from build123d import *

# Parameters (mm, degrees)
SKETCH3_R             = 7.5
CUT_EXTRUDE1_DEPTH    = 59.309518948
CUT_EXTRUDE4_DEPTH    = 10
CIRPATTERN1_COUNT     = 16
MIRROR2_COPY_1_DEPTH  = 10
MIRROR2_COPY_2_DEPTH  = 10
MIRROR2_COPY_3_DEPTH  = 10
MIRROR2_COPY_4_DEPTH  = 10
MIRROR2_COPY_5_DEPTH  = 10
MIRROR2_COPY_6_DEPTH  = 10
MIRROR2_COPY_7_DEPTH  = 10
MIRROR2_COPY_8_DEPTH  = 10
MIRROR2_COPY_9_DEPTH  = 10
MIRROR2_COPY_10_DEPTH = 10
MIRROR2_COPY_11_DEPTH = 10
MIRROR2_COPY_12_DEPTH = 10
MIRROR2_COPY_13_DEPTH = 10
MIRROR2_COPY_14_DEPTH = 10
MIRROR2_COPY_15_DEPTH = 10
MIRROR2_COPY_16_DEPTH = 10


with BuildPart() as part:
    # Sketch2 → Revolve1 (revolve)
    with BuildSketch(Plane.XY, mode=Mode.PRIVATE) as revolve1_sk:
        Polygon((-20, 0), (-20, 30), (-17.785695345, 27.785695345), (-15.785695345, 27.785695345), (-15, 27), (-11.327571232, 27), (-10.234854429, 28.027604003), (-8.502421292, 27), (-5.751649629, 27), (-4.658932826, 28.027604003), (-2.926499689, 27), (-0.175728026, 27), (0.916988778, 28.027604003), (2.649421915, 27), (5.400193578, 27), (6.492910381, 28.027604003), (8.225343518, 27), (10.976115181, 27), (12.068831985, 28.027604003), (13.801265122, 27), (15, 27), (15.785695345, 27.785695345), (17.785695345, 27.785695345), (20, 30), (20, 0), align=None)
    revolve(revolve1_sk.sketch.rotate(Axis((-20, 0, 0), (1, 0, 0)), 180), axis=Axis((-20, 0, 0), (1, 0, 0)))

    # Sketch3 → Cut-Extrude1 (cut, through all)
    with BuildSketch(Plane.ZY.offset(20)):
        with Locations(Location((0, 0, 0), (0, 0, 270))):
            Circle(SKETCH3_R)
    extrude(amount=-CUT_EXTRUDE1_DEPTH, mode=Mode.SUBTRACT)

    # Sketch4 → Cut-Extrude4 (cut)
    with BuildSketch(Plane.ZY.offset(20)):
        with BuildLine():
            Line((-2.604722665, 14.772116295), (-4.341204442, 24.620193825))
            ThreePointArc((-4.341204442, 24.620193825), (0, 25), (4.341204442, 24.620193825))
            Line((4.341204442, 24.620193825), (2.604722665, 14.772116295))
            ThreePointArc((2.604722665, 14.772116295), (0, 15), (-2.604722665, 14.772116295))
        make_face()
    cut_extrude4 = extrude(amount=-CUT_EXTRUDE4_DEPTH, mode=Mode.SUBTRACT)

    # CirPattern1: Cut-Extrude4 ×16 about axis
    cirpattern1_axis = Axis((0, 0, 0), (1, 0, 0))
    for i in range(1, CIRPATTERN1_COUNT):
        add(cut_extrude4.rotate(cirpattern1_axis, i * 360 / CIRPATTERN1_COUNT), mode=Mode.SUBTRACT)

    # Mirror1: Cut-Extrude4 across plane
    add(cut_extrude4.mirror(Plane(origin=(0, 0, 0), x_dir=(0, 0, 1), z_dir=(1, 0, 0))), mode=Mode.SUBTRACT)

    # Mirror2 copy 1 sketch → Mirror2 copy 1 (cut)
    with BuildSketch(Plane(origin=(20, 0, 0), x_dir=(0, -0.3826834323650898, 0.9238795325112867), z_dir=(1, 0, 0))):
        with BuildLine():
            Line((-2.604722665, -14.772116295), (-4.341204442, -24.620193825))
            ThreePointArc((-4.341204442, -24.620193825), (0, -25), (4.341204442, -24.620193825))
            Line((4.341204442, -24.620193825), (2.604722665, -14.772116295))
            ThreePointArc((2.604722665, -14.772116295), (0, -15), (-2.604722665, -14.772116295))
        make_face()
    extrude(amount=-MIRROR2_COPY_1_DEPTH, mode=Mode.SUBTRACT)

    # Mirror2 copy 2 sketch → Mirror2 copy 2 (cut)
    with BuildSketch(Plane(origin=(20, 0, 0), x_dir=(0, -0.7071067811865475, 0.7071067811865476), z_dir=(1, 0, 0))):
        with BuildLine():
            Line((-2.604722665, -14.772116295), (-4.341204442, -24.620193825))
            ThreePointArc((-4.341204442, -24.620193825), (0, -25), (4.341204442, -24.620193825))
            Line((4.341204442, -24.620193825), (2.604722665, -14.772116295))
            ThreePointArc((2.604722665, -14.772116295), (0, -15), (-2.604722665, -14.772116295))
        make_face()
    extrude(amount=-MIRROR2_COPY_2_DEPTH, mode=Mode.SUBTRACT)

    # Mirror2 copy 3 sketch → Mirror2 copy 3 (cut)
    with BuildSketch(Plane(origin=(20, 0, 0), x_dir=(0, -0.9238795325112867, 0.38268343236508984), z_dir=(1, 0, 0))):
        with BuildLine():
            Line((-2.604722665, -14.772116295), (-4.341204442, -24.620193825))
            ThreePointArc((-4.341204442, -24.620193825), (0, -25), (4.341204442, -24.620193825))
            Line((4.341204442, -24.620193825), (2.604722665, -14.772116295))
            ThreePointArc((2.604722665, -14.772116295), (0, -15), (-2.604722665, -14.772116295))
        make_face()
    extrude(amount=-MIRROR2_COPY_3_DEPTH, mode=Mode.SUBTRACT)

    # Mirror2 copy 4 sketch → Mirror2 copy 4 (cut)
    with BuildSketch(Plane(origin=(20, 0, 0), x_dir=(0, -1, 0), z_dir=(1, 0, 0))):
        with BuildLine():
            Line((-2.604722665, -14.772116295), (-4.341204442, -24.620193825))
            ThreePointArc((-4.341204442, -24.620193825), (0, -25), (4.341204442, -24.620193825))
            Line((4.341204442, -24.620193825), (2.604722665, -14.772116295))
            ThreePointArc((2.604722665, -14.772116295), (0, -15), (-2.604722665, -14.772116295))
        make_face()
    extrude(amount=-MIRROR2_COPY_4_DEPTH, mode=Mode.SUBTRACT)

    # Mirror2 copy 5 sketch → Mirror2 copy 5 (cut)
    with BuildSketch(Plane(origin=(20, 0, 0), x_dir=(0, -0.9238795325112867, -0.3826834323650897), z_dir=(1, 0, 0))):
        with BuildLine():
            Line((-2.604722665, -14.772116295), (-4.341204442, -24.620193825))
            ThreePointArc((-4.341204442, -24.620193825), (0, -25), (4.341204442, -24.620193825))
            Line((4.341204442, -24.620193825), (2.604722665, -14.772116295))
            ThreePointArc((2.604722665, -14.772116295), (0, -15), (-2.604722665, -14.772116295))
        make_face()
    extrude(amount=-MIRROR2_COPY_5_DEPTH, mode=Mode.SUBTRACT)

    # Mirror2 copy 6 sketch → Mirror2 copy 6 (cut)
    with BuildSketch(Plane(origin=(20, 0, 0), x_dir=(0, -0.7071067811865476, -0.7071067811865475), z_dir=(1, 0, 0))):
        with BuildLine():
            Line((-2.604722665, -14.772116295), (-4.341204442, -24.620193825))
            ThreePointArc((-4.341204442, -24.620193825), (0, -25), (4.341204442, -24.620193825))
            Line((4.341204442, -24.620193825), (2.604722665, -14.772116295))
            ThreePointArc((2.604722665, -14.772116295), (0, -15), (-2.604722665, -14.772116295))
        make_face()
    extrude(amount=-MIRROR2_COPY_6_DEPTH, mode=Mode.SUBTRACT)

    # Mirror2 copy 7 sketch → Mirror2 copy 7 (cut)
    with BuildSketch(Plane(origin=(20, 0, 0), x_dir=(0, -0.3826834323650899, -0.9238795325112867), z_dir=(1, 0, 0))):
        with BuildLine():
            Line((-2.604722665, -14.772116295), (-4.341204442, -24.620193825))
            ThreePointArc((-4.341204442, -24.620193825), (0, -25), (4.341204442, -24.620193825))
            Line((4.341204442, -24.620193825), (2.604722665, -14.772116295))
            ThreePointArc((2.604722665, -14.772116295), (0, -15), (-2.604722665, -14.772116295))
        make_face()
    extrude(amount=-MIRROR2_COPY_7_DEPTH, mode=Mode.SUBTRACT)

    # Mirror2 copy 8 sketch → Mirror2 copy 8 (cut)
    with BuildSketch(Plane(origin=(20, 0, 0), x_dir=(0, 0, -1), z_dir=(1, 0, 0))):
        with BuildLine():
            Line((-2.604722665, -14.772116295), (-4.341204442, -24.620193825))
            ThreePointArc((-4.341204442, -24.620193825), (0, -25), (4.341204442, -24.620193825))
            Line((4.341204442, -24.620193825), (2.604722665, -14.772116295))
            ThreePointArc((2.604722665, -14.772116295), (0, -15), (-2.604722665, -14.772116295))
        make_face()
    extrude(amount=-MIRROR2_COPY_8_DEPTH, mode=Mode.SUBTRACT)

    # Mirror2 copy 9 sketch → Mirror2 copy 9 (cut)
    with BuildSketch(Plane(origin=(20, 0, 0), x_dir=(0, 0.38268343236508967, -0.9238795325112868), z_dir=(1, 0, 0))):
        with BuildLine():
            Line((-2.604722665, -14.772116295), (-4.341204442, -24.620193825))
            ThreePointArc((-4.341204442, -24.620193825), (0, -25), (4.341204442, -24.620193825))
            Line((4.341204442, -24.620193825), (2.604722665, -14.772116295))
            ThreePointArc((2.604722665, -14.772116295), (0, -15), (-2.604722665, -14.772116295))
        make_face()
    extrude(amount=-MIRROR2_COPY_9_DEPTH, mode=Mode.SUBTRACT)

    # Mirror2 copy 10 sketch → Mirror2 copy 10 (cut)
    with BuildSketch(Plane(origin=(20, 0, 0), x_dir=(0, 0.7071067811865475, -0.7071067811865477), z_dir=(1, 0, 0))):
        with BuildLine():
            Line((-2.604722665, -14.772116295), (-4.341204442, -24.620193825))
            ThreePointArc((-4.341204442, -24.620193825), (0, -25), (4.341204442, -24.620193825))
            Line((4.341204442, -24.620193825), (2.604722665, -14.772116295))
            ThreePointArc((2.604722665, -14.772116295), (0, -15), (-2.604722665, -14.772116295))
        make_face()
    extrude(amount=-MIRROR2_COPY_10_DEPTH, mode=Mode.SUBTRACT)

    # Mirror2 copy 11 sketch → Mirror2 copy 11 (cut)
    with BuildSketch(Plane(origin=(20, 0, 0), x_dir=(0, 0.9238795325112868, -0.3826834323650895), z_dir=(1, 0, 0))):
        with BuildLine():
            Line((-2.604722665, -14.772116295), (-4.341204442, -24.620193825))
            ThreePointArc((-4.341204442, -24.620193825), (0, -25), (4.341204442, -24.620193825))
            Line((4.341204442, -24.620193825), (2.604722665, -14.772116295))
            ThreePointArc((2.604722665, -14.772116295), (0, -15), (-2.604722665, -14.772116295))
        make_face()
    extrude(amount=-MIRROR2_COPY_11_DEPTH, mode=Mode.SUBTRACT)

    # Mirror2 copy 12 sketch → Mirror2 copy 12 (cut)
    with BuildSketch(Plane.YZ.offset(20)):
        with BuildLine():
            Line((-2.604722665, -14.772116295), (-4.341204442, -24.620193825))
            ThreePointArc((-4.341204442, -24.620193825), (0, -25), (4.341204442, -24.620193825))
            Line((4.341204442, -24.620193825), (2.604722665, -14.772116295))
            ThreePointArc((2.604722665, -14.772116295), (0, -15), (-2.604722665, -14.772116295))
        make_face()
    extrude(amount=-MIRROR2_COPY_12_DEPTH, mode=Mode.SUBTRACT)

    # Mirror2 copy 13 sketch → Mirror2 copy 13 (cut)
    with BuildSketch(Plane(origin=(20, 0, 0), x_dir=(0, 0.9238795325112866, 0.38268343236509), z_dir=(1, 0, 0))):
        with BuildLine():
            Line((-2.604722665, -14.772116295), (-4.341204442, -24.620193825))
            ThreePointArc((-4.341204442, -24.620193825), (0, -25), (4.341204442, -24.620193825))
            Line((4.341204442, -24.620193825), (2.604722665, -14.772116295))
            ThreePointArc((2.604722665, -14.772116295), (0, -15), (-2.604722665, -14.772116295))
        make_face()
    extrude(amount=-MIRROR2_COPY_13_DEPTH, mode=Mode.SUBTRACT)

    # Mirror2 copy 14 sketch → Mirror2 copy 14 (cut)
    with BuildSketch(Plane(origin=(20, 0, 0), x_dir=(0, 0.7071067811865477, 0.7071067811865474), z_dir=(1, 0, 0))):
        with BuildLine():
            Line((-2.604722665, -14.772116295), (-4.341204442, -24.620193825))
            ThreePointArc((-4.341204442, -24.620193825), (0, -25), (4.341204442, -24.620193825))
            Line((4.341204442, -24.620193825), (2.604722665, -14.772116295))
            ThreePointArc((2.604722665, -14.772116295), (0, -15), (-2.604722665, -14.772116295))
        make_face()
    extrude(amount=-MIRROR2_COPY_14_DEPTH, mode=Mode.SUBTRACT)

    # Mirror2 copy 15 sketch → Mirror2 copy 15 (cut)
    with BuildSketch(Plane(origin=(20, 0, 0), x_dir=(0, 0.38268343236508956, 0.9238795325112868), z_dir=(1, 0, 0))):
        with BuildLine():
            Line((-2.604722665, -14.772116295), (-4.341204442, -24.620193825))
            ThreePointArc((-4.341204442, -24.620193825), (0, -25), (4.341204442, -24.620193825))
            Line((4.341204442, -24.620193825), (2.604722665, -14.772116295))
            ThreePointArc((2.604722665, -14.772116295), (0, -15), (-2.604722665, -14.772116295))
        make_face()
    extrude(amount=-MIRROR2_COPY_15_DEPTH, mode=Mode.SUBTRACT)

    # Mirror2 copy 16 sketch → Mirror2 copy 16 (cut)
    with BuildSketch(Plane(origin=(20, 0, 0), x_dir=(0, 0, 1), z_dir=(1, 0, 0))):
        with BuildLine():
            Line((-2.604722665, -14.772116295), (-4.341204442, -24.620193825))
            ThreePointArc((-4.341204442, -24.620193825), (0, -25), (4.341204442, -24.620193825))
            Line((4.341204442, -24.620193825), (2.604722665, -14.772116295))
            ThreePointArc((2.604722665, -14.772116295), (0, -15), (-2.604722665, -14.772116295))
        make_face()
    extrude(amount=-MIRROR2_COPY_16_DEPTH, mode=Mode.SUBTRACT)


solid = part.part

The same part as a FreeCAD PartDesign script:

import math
import FreeCAD as App
import Part
import Sketcher
from FreeCAD import Vector
Q = App.Units.Quantity


def add_polygon(sketch, points):
    """Adds a closed chain of lines whose ends are joined by coincident constraints."""
    first, n = sketch.GeometryCount, len(points)
    for a, b in zip(points, points[1:] + points[:1]):
        sketch.addGeometry(Part.LineSegment(App.Vector(*a, 0), App.Vector(*b, 0)), False)
    for i in range(n):
        sketch.addConstraint(Sketcher.Constraint("Coincident", first + i, 2, first + (i + 1) % n, 1))

doc = App.newDocument("Part")
body = doc.addObject("PartDesign::Body", "Body")

sketch1 = doc.addObject("Sketcher::SketchObject", "Sketch")
body.addObject(sketch1)
sketch1.AttachmentSupport = (doc.XY_Plane, [""])
sketch1.MapMode = "FlatFace"
add_polygon(sketch1, [(-20, 30), (-20, 0), (20, 0), (20, 30), (17.8, 27.8), (15.8, 27.8), (15, 27), (13.8, 27), (12.1, 28), (11, 27), (8.2, 27), (6.5, 28), (5.4, 27), (2.6, 27), (0.9, 28), (-0.2, 27), (-2.9, 27), (-4.7, 28), (-5.8, 27), (-8.5, 27), (-10.2, 28), (-11.3, 27), (-15, 27), (-15.8, 27.8), (-17.8, 27.8)])
sketch1.addConstraint([
    Sketcher.Constraint("Vertical", 0),
    Sketcher.Constraint("Horizontal", 1),
    Sketcher.Constraint("Vertical", 2),
    Sketcher.Constraint("Horizontal", 4),
    Sketcher.Constraint("Horizontal", 6),
    Sketcher.Constraint("Horizontal", 9),
    Sketcher.Constraint("Horizontal", 12),
    Sketcher.Constraint("Horizontal", 15),
    Sketcher.Constraint("Horizontal", 18),
    Sketcher.Constraint("Horizontal", 21),
    Sketcher.Constraint("Horizontal", 23),
    Sketcher.Constraint("Symmetric", 0, 2, 1, 2, -1, 1),
    Sketcher.Constraint("Symmetric", 5, 2, 21, 2, -2),
    Sketcher.Constraint("Symmetric", 4, 2, 22, 2, -2),
    Sketcher.Constraint("Parallel", 3, 5),
    Sketcher.Constraint("Parallel", 7, 10),
    Sketcher.Constraint("Parallel", 8, 11),
    Sketcher.Constraint("Parallel", 10, 13),
    Sketcher.Constraint("Parallel", 11, 14),
    Sketcher.Constraint("Parallel", 13, 16),
    Sketcher.Constraint("Parallel", 14, 17),
    Sketcher.Constraint("Parallel", 16, 19),
    Sketcher.Constraint("Parallel", 17, 20),
    Sketcher.Constraint("Perpendicular", 5, 22),
    Sketcher.Constraint("Parallel", 22, 24),
    Sketcher.Constraint("Horizontal", 6, 2, 8, 2),
    Sketcher.Constraint("Horizontal", 7, 2, 10, 2),
    Sketcher.Constraint("Horizontal", 9, 2, 11, 2),
    Sketcher.Constraint("Horizontal", 10, 2, 13, 2),
    Sketcher.Constraint("Horizontal", 12, 2, 14, 2),
    Sketcher.Constraint("Horizontal", 13, 2, 16, 2),
    Sketcher.Constraint("Horizontal", 15, 2, 17, 2),
    Sketcher.Constraint("Horizontal", 16, 2, 19, 2),
    Sketcher.Constraint("Horizontal", 2, 2, 24, 2),
    Sketcher.Constraint("Equal", 9, 12),
    Sketcher.Constraint("Equal", 12, 15),
    Sketcher.Constraint("Equal", 15, 18),
    Sketcher.Constraint("DistanceX", 1, 1, 1, 2, 40.0),
    Sketcher.Constraint("DistanceX", 4, 2, 4, 1, 2.0),
    Sketcher.Constraint("DistanceY", 0, 2, 0, 1, 30.0),
    Sketcher.Constraint("DistanceX", -1, 1, 5, 2, 15.0),
    Sketcher.Constraint("Distance", 8, 1.5),
    Sketcher.Constraint("Distance", 3, 3.1315),
    Sketcher.Constraint("DistanceX", 9, 2, 9, 1, 2.750772),
    Sketcher.Constraint("DistanceX", 21, 2, 21, 1, 3.672429),
    Sketcher.Constraint("DistanceX", 15, 2, -1, 1, 2.9265),
    Sketcher.Constraint("DistanceX", -1, 1, 7, 2, 12.068832),
])
revolution = doc.addObject("PartDesign::Revolution", "Revolution")
body.addObject(revolution)
revolution.Profile = sketch1
revolution.ReferenceAxis = (sketch1, ["H_Axis"])
revolution.Angle = 360

sketch2 = doc.addObject("Sketcher::SketchObject", "Sketch001")
body.addObject(sketch2)
sketch2.AttachmentSupport = (doc.YZ_Plane, [""])
sketch2.MapMode = "FlatFace"
sketch2.AttachmentOffset = App.Placement(Vector(0, 0, -20), App.Rotation())
sketch2.addGeometry(Part.Circle(Vector(0, 0, 0), Vector(0, 0, 1), 8), False)
sketch2.addConstraint([
    Sketcher.Constraint("Coincident", 0, 3, -1, 1),
    Sketcher.Constraint("Diameter", 0, 15.0),
])
pocket1 = doc.addObject("PartDesign::Pocket", "Pocket")
body.addObject(pocket1)
pocket1.Profile = sketch2
pocket1.Type = "ThroughAll"
pocket1.Reversed = True

sketch3 = doc.addObject("Sketcher::SketchObject", "Sketch002")
body.addObject(sketch3)
sketch3.AttachmentSupport = (doc.YZ_Plane, [""])
sketch3.MapMode = "FlatFace"
sketch3.AttachmentOffset = App.Placement(Vector(0, 0, -20), App.Rotation())
sketch3.addGeometry([
    Part.LineSegment(Vector(25, -4, 0), Vector(15, -3, 0)),
    Part.ArcOfCircle(Part.Circle(Vector(0, 0, 0), Vector(0, 0, 1), 15), math.radians(-10), math.radians(10)),
    Part.LineSegment(Vector(15, 3, 0), Vector(25, 4, 0)),
    Part.ArcOfCircle(Part.Circle(Vector(0, 0, 0), Vector(0, 0, 1), 25), math.radians(-10), math.radians(10)),
], False)
sketch3.addConstraint([
    Sketcher.Constraint("Coincident", 0, 2, 1, 1),
    Sketcher.Constraint("Coincident", 1, 2, 2, 1),
    Sketcher.Constraint("Coincident", 2, 2, 3, 2),
    Sketcher.Constraint("Coincident", 3, 1, 0, 1),
    Sketcher.Constraint("Coincident", 1, 3, -1, 1),
    Sketcher.Constraint("Coincident", 3, 3, -1, 1),
    Sketcher.Constraint("Vertical", 0, 2, 1, 2),
    Sketcher.Constraint("Vertical", 2, 2, 3, 1),
    Sketcher.Constraint("Radius", 1, 15.0),
    Sketcher.Constraint("Radius", 3, 25.0),
    Sketcher.Constraint("Angle", 0, Q("170 deg")),
    Sketcher.Constraint("DistanceY", 3, 1, 2, 2, 8.682409),
])
pocket2 = doc.addObject("PartDesign::Pocket", "Pocket001")
body.addObject(pocket2)
pocket2.Profile = sketch3
pocket2.Length = 10
pocket2.Reversed = True
doc.recompute()

polarpattern = doc.addObject("PartDesign::PolarPattern", "PolarPattern")
body.addObject(polarpattern)
polarpattern.Originals = [pocket2]
polarpattern.Axis = (doc.X_Axis, [""])
polarpattern.Angle = 360
polarpattern.Occurrences = 16
body.Tip = polarpattern
doc.recompute()

mirrored = doc.addObject("PartDesign::Mirrored", "Mirrored")
body.addObject(mirrored)
mirrored.Originals = [pocket2]
mirrored.MirrorPlane = (doc.YZ_Plane, [""])
body.Tip = mirrored

sketch4 = doc.addObject("Sketcher::SketchObject", "Sketch003")
body.addObject(sketch4)
sketch4.AttachmentSupport = (doc.YZ_Plane, [""])
sketch4.MapMode = "FlatFace"
sketch4.AttachmentOffset = App.Placement(Vector(0, 0, 20), App.Rotation())
sketch4.addGeometry([
    Part.LineSegment(Vector(15, 3, 0), Vector(24, 5, 0)),
    Part.ArcOfCircle(Part.Circle(Vector(0, 0, 0), Vector(0, 0, 1), 25), math.radians(12), math.radians(32)),
    Part.LineSegment(Vector(21, 13, 0), Vector(13, 8, 0)),
    Part.ArcOfCircle(Part.Circle(Vector(0, 0, 0), Vector(0, 0, 1), 15), math.radians(12), math.radians(32)),
], False)
sketch4.addConstraint([
    Sketcher.Constraint("Coincident", 0, 2, 1, 1),
    Sketcher.Constraint("Coincident", 1, 2, 2, 1),
    Sketcher.Constraint("Coincident", 2, 2, 3, 2),
    Sketcher.Constraint("Coincident", 3, 1, 0, 1),
    Sketcher.Constraint("Coincident", 1, 3, -1, 1),
    Sketcher.Constraint("Coincident", 3, 3, -1, 1),
    Sketcher.Constraint("Radius", 1, 25.0),
    Sketcher.Constraint("Radius", 3, 15.0),
    Sketcher.Constraint("Angle", 0, Q("12.5 deg")),
    Sketcher.Constraint("Angle", 2, Q("-147.5 deg")),
    Sketcher.Constraint("DistanceX", -1, 1, 0, 2, 24.4074),
    Sketcher.Constraint("DistanceY", 0, 2, 1, 2, 8.0215),
])
pocket3 = doc.addObject("PartDesign::Pocket", "Pocket002")
body.addObject(pocket3)
pocket3.Profile = sketch4
pocket3.Length = 10

sketch5 = doc.addObject("Sketcher::SketchObject", "Sketch004")
body.addObject(sketch5)
sketch5.AttachmentSupport = (doc.YZ_Plane, [""])
sketch5.MapMode = "FlatFace"
sketch5.AttachmentOffset = App.Placement(Vector(0, 0, 20), App.Rotation())
sketch5.addGeometry([
    Part.LineSegment(Vector(12, 9, 0), Vector(20, 14, 0)),
    Part.ArcOfCircle(Part.Circle(Vector(0, 0, 0), Vector(0, 0, 1), 25), math.radians(35), math.radians(55)),
    Part.LineSegment(Vector(14, 20, 0), Vector(9, 12, 0)),
    Part.ArcOfCircle(Part.Circle(Vector(0, 0, 0), Vector(0, 0, 1), 15), math.radians(35), math.radians(55)),
], False)
sketch5.addConstraint([
    Sketcher.Constraint("Coincident", 0, 2, 1, 1),
    Sketcher.Constraint("Coincident", 1, 2, 2, 1),
    Sketcher.Constraint("Coincident", 2, 2, 3, 2),
    Sketcher.Constraint("Coincident", 3, 1, 0, 1),
    Sketcher.Constraint("Coincident", 1, 3, -1, 1),
    Sketcher.Constraint("Coincident", 3, 3, -1, 1),
    Sketcher.Constraint("Radius", 1, 25.0),
    Sketcher.Constraint("Radius", 3, 15.0),
    Sketcher.Constraint("Angle", 0, Q("35 deg")),
    Sketcher.Constraint("Angle", 2, Q("-125 deg")),
    Sketcher.Constraint("DistanceX", -1, 1, 0, 2, 20.478801),
    Sketcher.Constraint("DistanceY", -1, 1, 1, 2, 20.478801),
])
pocket4 = doc.addObject("PartDesign::Pocket", "Pocket003")
body.addObject(pocket4)
pocket4.Profile = sketch5
pocket4.Length = 10

sketch6 = doc.addObject("Sketcher::SketchObject", "Sketch005")
body.addObject(sketch6)
sketch6.AttachmentSupport = (doc.YZ_Plane, [""])
sketch6.MapMode = "FlatFace"
sketch6.AttachmentOffset = App.Placement(Vector(0, 0, 20), App.Rotation())
sketch6.addGeometry([
    Part.LineSegment(Vector(8, 13, 0), Vector(13, 21, 0)),
    Part.ArcOfCircle(Part.Circle(Vector(0, 0, 0), Vector(0, 0, 1), 25), math.radians(58), math.radians(78)),
    Part.LineSegment(Vector(5, 24, 0), Vector(3, 15, 0)),
    Part.ArcOfCircle(Part.Circle(Vector(0, 0, 0), Vector(0, 0, 1), 15), math.radians(58), math.radians(78)),
], False)
sketch6.addConstraint([
    Sketcher.Constraint("Coincident", 0, 2, 1, 1),
    Sketcher.Constraint("Coincident", 1, 2, 2, 1),
    Sketcher.Constraint("Coincident", 2, 2, 3, 2),
    Sketcher.Constraint("Coincident", 3, 1, 0, 1),
    Sketcher.Constraint("Coincident", 1, 3, -1, 1),
    Sketcher.Constraint("Coincident", 3, 3, -1, 1),
    Sketcher.Constraint("Radius", 1, 25.0),
    Sketcher.Constraint("Radius", 3, 15.0),
    Sketcher.Constraint("Angle", 0, Q("57.5 deg")),
    Sketcher.Constraint("Angle", 2, Q("-102.5 deg")),
    Sketcher.Constraint("DistanceY", -1, 1, 1, 2, 24.4074),
    Sketcher.Constraint("DistanceX", 1, 2, 0, 2, 8.0215),
])
pocket5 = doc.addObject("PartDesign::Pocket", "Pocket004")
body.addObject(pocket5)
pocket5.Profile = sketch6
pocket5.Length = 10

sketch7 = doc.addObject("Sketcher::SketchObject", "Sketch006")
body.addObject(sketch7)
sketch7.AttachmentSupport = (doc.YZ_Plane, [""])
sketch7.MapMode = "FlatFace"
sketch7.AttachmentOffset = App.Placement(Vector(0, 0, 20), App.Rotation())
sketch7.addGeometry([
    Part.LineSegment(Vector(3, 15, 0), Vector(4, 25, 0)),
    Part.ArcOfCircle(Part.Circle(Vector(0, 0, 0), Vector(0, 0, 1), 25), math.radians(80), math.radians(100)),
    Part.LineSegment(Vector(-4, 25, 0), Vector(-3, 15, 0)),
    Part.ArcOfCircle(Part.Circle(Vector(0, 0, 0), Vector(0, 0, 1), 15), math.radians(80), math.radians(100)),
], False)
sketch7.addConstraint([
    Sketcher.Constraint("Coincident", 0, 2, 1, 1),
    Sketcher.Constraint("Coincident", 1, 2, 2, 1),
    Sketcher.Constraint("Coincident", 2, 2, 3, 2),
    Sketcher.Constraint("Coincident", 3, 1, 0, 1),
    Sketcher.Constraint("Coincident", 1, 3, -1, 1),
    Sketcher.Constraint("Coincident", 3, 3, -1, 1),
    Sketcher.Constraint("Horizontal", 0, 2, 1, 2),
    Sketcher.Constraint("Horizontal", 2, 2, 3, 1),
    Sketcher.Constraint("Radius", 1, 25.0),
    Sketcher.Constraint("Radius", 3, 15.0),
    Sketcher.Constraint("Angle", 0, Q("80 deg")),
    Sketcher.Constraint("DistanceX", 1, 2, 0, 2, 8.682409),
])
pocket6 = doc.addObject("PartDesign::Pocket", "Pocket005")
body.addObject(pocket6)
pocket6.Profile = sketch7
pocket6.Length = 10

sketch8 = doc.addObject("Sketcher::SketchObject", "Sketch007")
body.addObject(sketch8)
sketch8.AttachmentSupport = (doc.YZ_Plane, [""])
sketch8.MapMode = "FlatFace"
sketch8.AttachmentOffset = App.Placement(Vector(0, 0, 20), App.Rotation())
sketch8.addGeometry([
    Part.LineSegment(Vector(-3, 15, 0), Vector(-5, 24, 0)),
    Part.ArcOfCircle(Part.Circle(Vector(0, 0, 0), Vector(0, 0, 1), 25), math.radians(102), math.radians(122)),
    Part.LineSegment(Vector(-13, 21, 0), Vector(-8, 13, 0)),
    Part.ArcOfCircle(Part.Circle(Vector(0, 0, 0), Vector(0, 0, 1), 15), math.radians(102), math.radians(122)),
], False)
sketch8.addConstraint([
    Sketcher.Constraint("Coincident", 0, 2, 1, 1),
    Sketcher.Constraint("Coincident", 1, 2, 2, 1),
    Sketcher.Constraint("Coincident", 2, 2, 3, 2),
    Sketcher.Constraint("Coincident", 3, 1, 0, 1),
    Sketcher.Constraint("Coincident", 1, 3, -1, 1),
    Sketcher.Constraint("Coincident", 3, 3, -1, 1),
    Sketcher.Constraint("Radius", 1, 25.0),
    Sketcher.Constraint("Radius", 3, 15.0),
    Sketcher.Constraint("Angle", 0, Q("102.5 deg")),
    Sketcher.Constraint("Angle", 2, Q("-57.5 deg")),
    Sketcher.Constraint("DistanceY", -1, 1, 0, 2, 24.4074),
    Sketcher.Constraint("DistanceX", 1, 2, 0, 2, 8.0215),
])
pocket7 = doc.addObject("PartDesign::Pocket", "Pocket006")
body.addObject(pocket7)
pocket7.Profile = sketch8
pocket7.Length = 10

sketch9 = doc.addObject("Sketcher::SketchObject", "Sketch008")
body.addObject(sketch9)
sketch9.AttachmentSupport = (doc.YZ_Plane, [""])
sketch9.MapMode = "FlatFace"
sketch9.AttachmentOffset = App.Placement(Vector(0, 0, 20), App.Rotation())
sketch9.addGeometry([
    Part.LineSegment(Vector(-9, 12, 0), Vector(-14, 20, 0)),
    Part.ArcOfCircle(Part.Circle(Vector(0, 0, 0), Vector(0, 0, 1), 25), math.radians(125), math.radians(145)),
    Part.LineSegment(Vector(-20, 14, 0), Vector(-12, 9, 0)),
    Part.ArcOfCircle(Part.Circle(Vector(0, 0, 0), Vector(0, 0, 1), 15), math.radians(125), math.radians(145)),
], False)
sketch9.addConstraint([
    Sketcher.Constraint("Coincident", 0, 2, 1, 1),
    Sketcher.Constraint("Coincident", 1, 2, 2, 1),
    Sketcher.Constraint("Coincident", 2, 2, 3, 2),
    Sketcher.Constraint("Coincident", 3, 1, 0, 1),
    Sketcher.Constraint("Coincident", 1, 3, -1, 1),
    Sketcher.Constraint("Coincident", 3, 3, -1, 1),
    Sketcher.Constraint("Radius", 1, 25.0),
    Sketcher.Constraint("Radius", 3, 15.0),
    Sketcher.Constraint("Angle", 0, Q("125 deg")),
    Sketcher.Constraint("Angle", 2, Q("-35 deg")),
    Sketcher.Constraint("DistanceY", -1, 1, 0, 2, 20.478801),
    Sketcher.Constraint("DistanceX", 1, 2, -1, 1, 20.478801),
])
pocket8 = doc.addObject("PartDesign::Pocket", "Pocket007")
body.addObject(pocket8)
pocket8.Profile = sketch9
pocket8.Length = 10

sketch10 = doc.addObject("Sketcher::SketchObject", "Sketch009")
body.addObject(sketch10)
sketch10.AttachmentSupport = (doc.YZ_Plane, [""])
sketch10.MapMode = "FlatFace"
sketch10.AttachmentOffset = App.Placement(Vector(0, 0, 20), App.Rotation())
sketch10.addGeometry([
    Part.LineSegment(Vector(-13, 8, 0), Vector(-21, 13, 0)),
    Part.ArcOfCircle(Part.Circle(Vector(0, 0, 0), Vector(0, 0, 1), 25), math.radians(148), math.radians(168)),
    Part.LineSegment(Vector(-24, 5, 0), Vector(-15, 3, 0)),
    Part.ArcOfCircle(Part.Circle(Vector(0, 0, 0), Vector(0, 0, 1), 15), math.radians(148), math.radians(168)),
], False)
sketch10.addConstraint([
    Sketcher.Constraint("Coincident", 0, 2, 1, 1),
    Sketcher.Constraint("Coincident", 1, 2, 2, 1),
    Sketcher.Constraint("Coincident", 2, 2, 3, 2),
    Sketcher.Constraint("Coincident", 3, 1, 0, 1),
    Sketcher.Constraint("Coincident", 1, 3, -1, 1),
    Sketcher.Constraint("Coincident", 3, 3, -1, 1),
    Sketcher.Constraint("Radius", 1, 25.0),
    Sketcher.Constraint("Radius", 3, 15.0),
    Sketcher.Constraint("Angle", 0, Q("147.5 deg")),
    Sketcher.Constraint("Angle", 2, Q("-12.5 deg")),
    Sketcher.Constraint("DistanceX", 1, 2, -1, 1, 24.4074),
    Sketcher.Constraint("DistanceY", 1, 2, 0, 2, 8.0215),
])
pocket9 = doc.addObject("PartDesign::Pocket", "Pocket008")
body.addObject(pocket9)
pocket9.Profile = sketch10
pocket9.Length = 10

sketch11 = doc.addObject("Sketcher::SketchObject", "Sketch010")
body.addObject(sketch11)
sketch11.AttachmentSupport = (doc.YZ_Plane, [""])
sketch11.MapMode = "FlatFace"
sketch11.AttachmentOffset = App.Placement(Vector(0, 0, 20), App.Rotation())
sketch11.addGeometry([
    Part.LineSegment(Vector(-15, 3, 0), Vector(-25, 4, 0)),
    Part.ArcOfCircle(Part.Circle(Vector(0, 0, 0), Vector(0, 0, 1), 25), math.radians(170), math.radians(190)),
    Part.LineSegment(Vector(-25, -4, 0), Vector(-15, -3, 0)),
    Part.ArcOfCircle(Part.Circle(Vector(0, 0, 0), Vector(0, 0, 1), 15), math.radians(170), math.radians(190)),
], False)
sketch11.addConstraint([
    Sketcher.Constraint("Coincident", 0, 2, 1, 1),
    Sketcher.Constraint("Coincident", 1, 2, 2, 1),
    Sketcher.Constraint("Coincident", 2, 2, 3, 2),
    Sketcher.Constraint("Coincident", 3, 1, 0, 1),
    Sketcher.Constraint("Coincident", 1, 3, -1, 1),
    Sketcher.Constraint("Coincident", 3, 3, -1, 1),
    Sketcher.Constraint("Vertical", 0, 2, 1, 2),
    Sketcher.Constraint("Vertical", 2, 2, 3, 1),
    Sketcher.Constraint("Radius", 1, 25.0),
    Sketcher.Constraint("Radius", 3, 15.0),
    Sketcher.Constraint("Angle", 0, Q("170 deg")),
    Sketcher.Constraint("DistanceY", 1, 2, 0, 2, 8.682409),
])
pocket10 = doc.addObject("PartDesign::Pocket", "Pocket009")
body.addObject(pocket10)
pocket10.Profile = sketch11
pocket10.Length = 10

sketch12 = doc.addObject("Sketcher::SketchObject", "Sketch011")
body.addObject(sketch12)
sketch12.AttachmentSupport = (doc.YZ_Plane, [""])
sketch12.MapMode = "FlatFace"
sketch12.AttachmentOffset = App.Placement(Vector(0, 0, 20), App.Rotation())
sketch12.addGeometry([
    Part.LineSegment(Vector(-15, -3, 0), Vector(-24, -5, 0)),
    Part.ArcOfCircle(Part.Circle(Vector(0, 0, 0), Vector(0, 0, 1), 25), math.radians(-168), math.radians(-148)),
    Part.LineSegment(Vector(-21, -13, 0), Vector(-13, -8, 0)),
    Part.ArcOfCircle(Part.Circle(Vector(0, 0, 0), Vector(0, 0, 1), 15), math.radians(-168), math.radians(-148)),
], False)
sketch12.addConstraint([
    Sketcher.Constraint("Coincident", 0, 2, 1, 1),
    Sketcher.Constraint("Coincident", 1, 2, 2, 1),
    Sketcher.Constraint("Coincident", 2, 2, 3, 2),
    Sketcher.Constraint("Coincident", 3, 1, 0, 1),
    Sketcher.Constraint("Coincident", 1, 3, -1, 1),
    Sketcher.Constraint("Coincident", 3, 3, -1, 1),
    Sketcher.Constraint("Radius", 1, 25.0),
    Sketcher.Constraint("Radius", 3, 15.0),
    Sketcher.Constraint("Angle", 0, Q("-167.5 deg")),
    Sketcher.Constraint("Angle", 2, Q("32.5 deg")),
    Sketcher.Constraint("DistanceX", 0, 2, -1, 1, 24.4074),
    Sketcher.Constraint("DistanceY", 1, 2, 0, 2, 8.0215),
])
pocket11 = doc.addObject("PartDesign::Pocket", "Pocket010")
body.addObject(pocket11)
pocket11.Profile = sketch12
pocket11.Length = 10

sketch13 = doc.addObject("Sketcher::SketchObject", "Sketch012")
body.addObject(sketch13)
sketch13.AttachmentSupport = (doc.YZ_Plane, [""])
sketch13.MapMode = "FlatFace"
sketch13.AttachmentOffset = App.Placement(Vector(0, 0, 20), App.Rotation())
sketch13.addGeometry([
    Part.LineSegment(Vector(-12, -9, 0), Vector(-20, -14, 0)),
    Part.ArcOfCircle(Part.Circle(Vector(0, 0, 0), Vector(0, 0, 1), 25), math.radians(-145), math.radians(-125)),
    Part.LineSegment(Vector(-14, -20, 0), Vector(-9, -12, 0)),
    Part.ArcOfCircle(Part.Circle(Vector(0, 0, 0), Vector(0, 0, 1), 15), math.radians(-145), math.radians(-125)),
], False)
sketch13.addConstraint([
    Sketcher.Constraint("Coincident", 0, 2, 1, 1),
    Sketcher.Constraint("Coincident", 1, 2, 2, 1),
    Sketcher.Constraint("Coincident", 2, 2, 3, 2),
    Sketcher.Constraint("Coincident", 3, 1, 0, 1),
    Sketcher.Constraint("Coincident", 1, 3, -1, 1),
    Sketcher.Constraint("Coincident", 3, 3, -1, 1),
    Sketcher.Constraint("Radius", 1, 25.0),
    Sketcher.Constraint("Radius", 3, 15.0),
    Sketcher.Constraint("Angle", 0, Q("-145 deg")),
    Sketcher.Constraint("Angle", 2, Q("55 deg")),
    Sketcher.Constraint("DistanceX", 0, 2, -1, 1, 20.478801),
    Sketcher.Constraint("DistanceY", 1, 2, -1, 1, 20.478801),
])
pocket12 = doc.addObject("PartDesign::Pocket", "Pocket011")
body.addObject(pocket12)
pocket12.Profile = sketch13
pocket12.Length = 10

sketch14 = doc.addObject("Sketcher::SketchObject", "Sketch013")
body.addObject(sketch14)
sketch14.AttachmentSupport = (doc.YZ_Plane, [""])
sketch14.MapMode = "FlatFace"
sketch14.AttachmentOffset = App.Placement(Vector(0, 0, 20), App.Rotation())
sketch14.addGeometry([
    Part.LineSegment(Vector(-8, -13, 0), Vector(-13, -21, 0)),
    Part.ArcOfCircle(Part.Circle(Vector(0, 0, 0), Vector(0, 0, 1), 25), math.radians(-122), math.radians(-102)),
    Part.LineSegment(Vector(-5, -24, 0), Vector(-3, -15, 0)),
    Part.ArcOfCircle(Part.Circle(Vector(0, 0, 0), Vector(0, 0, 1), 15), math.radians(-122), math.radians(-102)),
], False)
sketch14.addConstraint([
    Sketcher.Constraint("Coincident", 0, 2, 1, 1),
    Sketcher.Constraint("Coincident", 1, 2, 2, 1),
    Sketcher.Constraint("Coincident", 2, 2, 3, 2),
    Sketcher.Constraint("Coincident", 3, 1, 0, 1),
    Sketcher.Constraint("Coincident", 1, 3, -1, 1),
    Sketcher.Constraint("Coincident", 3, 3, -1, 1),
    Sketcher.Constraint("Radius", 1, 25.0),
    Sketcher.Constraint("Radius", 3, 15.0),
    Sketcher.Constraint("Angle", 0, Q("-122.5 deg")),
    Sketcher.Constraint("Angle", 2, Q("77.5 deg")),
    Sketcher.Constraint("DistanceY", 1, 2, -1, 1, 24.4074),
    Sketcher.Constraint("DistanceX", 0, 2, 1, 2, 8.0215),
])
pocket13 = doc.addObject("PartDesign::Pocket", "Pocket012")
body.addObject(pocket13)
pocket13.Profile = sketch14
pocket13.Length = 10

sketch15 = doc.addObject("Sketcher::SketchObject", "Sketch014")
body.addObject(sketch15)
sketch15.AttachmentSupport = (doc.YZ_Plane, [""])
sketch15.MapMode = "FlatFace"
sketch15.AttachmentOffset = App.Placement(Vector(0, 0, 20), App.Rotation())
sketch15.addGeometry([
    Part.LineSegment(Vector(-3, -15, 0), Vector(-4, -25, 0)),
    Part.ArcOfCircle(Part.Circle(Vector(0, 0, 0), Vector(0, 0, 1), 25), math.radians(-100), math.radians(-80)),
    Part.LineSegment(Vector(4, -25, 0), Vector(3, -15, 0)),
    Part.ArcOfCircle(Part.Circle(Vector(0, 0, 0), Vector(0, 0, 1), 15), math.radians(-100), math.radians(-80)),
], False)
sketch15.addConstraint([
    Sketcher.Constraint("Coincident", 0, 2, 1, 1),
    Sketcher.Constraint("Coincident", 1, 2, 2, 1),
    Sketcher.Constraint("Coincident", 2, 2, 3, 2),
    Sketcher.Constraint("Coincident", 3, 1, 0, 1),
    Sketcher.Constraint("Coincident", 1, 3, -1, 1),
    Sketcher.Constraint("Coincident", 3, 3, -1, 1),
    Sketcher.Constraint("Horizontal", 0, 2, 1, 2),
    Sketcher.Constraint("Horizontal", 2, 2, 3, 1),
    Sketcher.Constraint("Radius", 1, 25.0),
    Sketcher.Constraint("Radius", 3, 15.0),
    Sketcher.Constraint("Angle", 0, Q("-100 deg")),
    Sketcher.Constraint("DistanceX", 0, 2, 1, 2, 8.682409),
])
pocket14 = doc.addObject("PartDesign::Pocket", "Pocket013")
body.addObject(pocket14)
pocket14.Profile = sketch15
pocket14.Length = 10

sketch16 = doc.addObject("Sketcher::SketchObject", "Sketch015")
body.addObject(sketch16)
sketch16.AttachmentSupport = (doc.YZ_Plane, [""])
sketch16.MapMode = "FlatFace"
sketch16.AttachmentOffset = App.Placement(Vector(0, 0, 20), App.Rotation())
sketch16.addGeometry([
    Part.LineSegment(Vector(3, -15, 0), Vector(5, -24, 0)),
    Part.ArcOfCircle(Part.Circle(Vector(0, 0, 0), Vector(0, 0, 1), 25), math.radians(-78), math.radians(-58)),
    Part.LineSegment(Vector(13, -21, 0), Vector(8, -13, 0)),
    Part.ArcOfCircle(Part.Circle(Vector(0, 0, 0), Vector(0, 0, 1), 15), math.radians(-78), math.radians(-58)),
], False)
sketch16.addConstraint([
    Sketcher.Constraint("Coincident", 0, 2, 1, 1),
    Sketcher.Constraint("Coincident", 1, 2, 2, 1),
    Sketcher.Constraint("Coincident", 2, 2, 3, 2),
    Sketcher.Constraint("Coincident", 3, 1, 0, 1),
    Sketcher.Constraint("Coincident", 1, 3, -1, 1),
    Sketcher.Constraint("Coincident", 3, 3, -1, 1),
    Sketcher.Constraint("Radius", 1, 25.0),
    Sketcher.Constraint("Radius", 3, 15.0),
    Sketcher.Constraint("Angle", 0, Q("-77.5 deg")),
    Sketcher.Constraint("Angle", 2, Q("122.5 deg")),
    Sketcher.Constraint("DistanceY", 0, 2, -1, 1, 24.4074),
    Sketcher.Constraint("DistanceX", 0, 2, 1, 2, 8.0215),
])
pocket15 = doc.addObject("PartDesign::Pocket", "Pocket014")
body.addObject(pocket15)
pocket15.Profile = sketch16
pocket15.Length = 10

sketch17 = doc.addObject("Sketcher::SketchObject", "Sketch016")
body.addObject(sketch17)
sketch17.AttachmentSupport = (doc.YZ_Plane, [""])
sketch17.MapMode = "FlatFace"
sketch17.AttachmentOffset = App.Placement(Vector(0, 0, 20), App.Rotation())
sketch17.addGeometry([
    Part.LineSegment(Vector(9, -12, 0), Vector(14, -20, 0)),
    Part.ArcOfCircle(Part.Circle(Vector(0, 0, 0), Vector(0, 0, 1), 25), math.radians(-55), math.radians(-35)),
    Part.LineSegment(Vector(20, -14, 0), Vector(12, -9, 0)),
    Part.ArcOfCircle(Part.Circle(Vector(0, 0, 0), Vector(0, 0, 1), 15), math.radians(-55), math.radians(-35)),
], False)
sketch17.addConstraint([
    Sketcher.Constraint("Coincident", 0, 2, 1, 1),
    Sketcher.Constraint("Coincident", 1, 2, 2, 1),
    Sketcher.Constraint("Coincident", 2, 2, 3, 2),
    Sketcher.Constraint("Coincident", 3, 1, 0, 1),
    Sketcher.Constraint("Coincident", 1, 3, -1, 1),
    Sketcher.Constraint("Coincident", 3, 3, -1, 1),
    Sketcher.Constraint("Radius", 1, 25.0),
    Sketcher.Constraint("Radius", 3, 15.0),
    Sketcher.Constraint("Angle", 0, Q("-55 deg")),
    Sketcher.Constraint("Angle", 2, Q("145 deg")),
    Sketcher.Constraint("DistanceY", 0, 2, -1, 1, 20.478801),
    Sketcher.Constraint("DistanceX", -1, 1, 1, 2, 20.478801),
])
pocket16 = doc.addObject("PartDesign::Pocket", "Pocket015")
body.addObject(pocket16)
pocket16.Profile = sketch17
pocket16.Length = 10

sketch18 = doc.addObject("Sketcher::SketchObject", "Sketch017")
body.addObject(sketch18)
sketch18.AttachmentSupport = (doc.YZ_Plane, [""])
sketch18.MapMode = "FlatFace"
sketch18.AttachmentOffset = App.Placement(Vector(0, 0, 20), App.Rotation())
sketch18.addGeometry([
    Part.LineSegment(Vector(13, -8, 0), Vector(21, -13, 0)),
    Part.ArcOfCircle(Part.Circle(Vector(0, 0, 0), Vector(0, 0, 1), 25), math.radians(-32), math.radians(-12)),
    Part.LineSegment(Vector(24, -5, 0), Vector(15, -3, 0)),
    Part.ArcOfCircle(Part.Circle(Vector(0, 0, 0), Vector(0, 0, 1), 15), math.radians(-32), math.radians(-12)),
], False)
sketch18.addConstraint([
    Sketcher.Constraint("Coincident", 0, 2, 1, 1),
    Sketcher.Constraint("Coincident", 1, 2, 2, 1),
    Sketcher.Constraint("Coincident", 2, 2, 3, 2),
    Sketcher.Constraint("Coincident", 3, 1, 0, 1),
    Sketcher.Constraint("Coincident", 1, 3, -1, 1),
    Sketcher.Constraint("Coincident", 3, 3, -1, 1),
    Sketcher.Constraint("Radius", 1, 25.0),
    Sketcher.Constraint("Radius", 3, 15.0),
    Sketcher.Constraint("Angle", 0, Q("-32.5 deg")),
    Sketcher.Constraint("Angle", 2, Q("167.5 deg")),
    Sketcher.Constraint("DistanceX", -1, 1, 1, 2, 24.4074),
    Sketcher.Constraint("DistanceY", 0, 2, 1, 2, 8.0215),
])
pocket17 = doc.addObject("PartDesign::Pocket", "Pocket016")
body.addObject(pocket17)
pocket17.Profile = sketch18
pocket17.Length = 10

sketch19 = doc.addObject("Sketcher::SketchObject", "Sketch018")
body.addObject(sketch19)
sketch19.AttachmentSupport = (doc.YZ_Plane, [""])
sketch19.MapMode = "FlatFace"
sketch19.AttachmentOffset = App.Placement(Vector(0, 0, 20), App.Rotation())
sketch19.addGeometry([
    Part.LineSegment(Vector(15, -3, 0), Vector(25, -4, 0)),
    Part.ArcOfCircle(Part.Circle(Vector(0, 0, 0), Vector(0, 0, 1), 25), math.radians(-10), math.radians(10)),
    Part.LineSegment(Vector(25, 4, 0), Vector(15, 3, 0)),
    Part.ArcOfCircle(Part.Circle(Vector(0, 0, 0), Vector(0, 0, 1), 15), math.radians(-10), math.radians(10)),
], False)
sketch19.addConstraint([
    Sketcher.Constraint("Coincident", 0, 2, 1, 1),
    Sketcher.Constraint("Coincident", 1, 2, 2, 1),
    Sketcher.Constraint("Coincident", 2, 2, 3, 2),
    Sketcher.Constraint("Coincident", 3, 1, 0, 1),
    Sketcher.Constraint("Coincident", 1, 3, -1, 1),
    Sketcher.Constraint("Coincident", 3, 3, -1, 1),
    Sketcher.Constraint("Vertical", 0, 2, 1, 2),
    Sketcher.Constraint("Vertical", 2, 2, 3, 1),
    Sketcher.Constraint("Radius", 1, 25.0),
    Sketcher.Constraint("Radius", 3, 15.0),
    Sketcher.Constraint("Angle", 0, Q("-10 deg")),
    Sketcher.Constraint("DistanceY", 0, 2, 1, 2, 8.682409),
])
pocket18 = doc.addObject("PartDesign::Pocket", "Pocket017")
body.addObject(pocket18)
pocket18.Profile = sketch19
pocket18.Length = 10

doc.recompute()
